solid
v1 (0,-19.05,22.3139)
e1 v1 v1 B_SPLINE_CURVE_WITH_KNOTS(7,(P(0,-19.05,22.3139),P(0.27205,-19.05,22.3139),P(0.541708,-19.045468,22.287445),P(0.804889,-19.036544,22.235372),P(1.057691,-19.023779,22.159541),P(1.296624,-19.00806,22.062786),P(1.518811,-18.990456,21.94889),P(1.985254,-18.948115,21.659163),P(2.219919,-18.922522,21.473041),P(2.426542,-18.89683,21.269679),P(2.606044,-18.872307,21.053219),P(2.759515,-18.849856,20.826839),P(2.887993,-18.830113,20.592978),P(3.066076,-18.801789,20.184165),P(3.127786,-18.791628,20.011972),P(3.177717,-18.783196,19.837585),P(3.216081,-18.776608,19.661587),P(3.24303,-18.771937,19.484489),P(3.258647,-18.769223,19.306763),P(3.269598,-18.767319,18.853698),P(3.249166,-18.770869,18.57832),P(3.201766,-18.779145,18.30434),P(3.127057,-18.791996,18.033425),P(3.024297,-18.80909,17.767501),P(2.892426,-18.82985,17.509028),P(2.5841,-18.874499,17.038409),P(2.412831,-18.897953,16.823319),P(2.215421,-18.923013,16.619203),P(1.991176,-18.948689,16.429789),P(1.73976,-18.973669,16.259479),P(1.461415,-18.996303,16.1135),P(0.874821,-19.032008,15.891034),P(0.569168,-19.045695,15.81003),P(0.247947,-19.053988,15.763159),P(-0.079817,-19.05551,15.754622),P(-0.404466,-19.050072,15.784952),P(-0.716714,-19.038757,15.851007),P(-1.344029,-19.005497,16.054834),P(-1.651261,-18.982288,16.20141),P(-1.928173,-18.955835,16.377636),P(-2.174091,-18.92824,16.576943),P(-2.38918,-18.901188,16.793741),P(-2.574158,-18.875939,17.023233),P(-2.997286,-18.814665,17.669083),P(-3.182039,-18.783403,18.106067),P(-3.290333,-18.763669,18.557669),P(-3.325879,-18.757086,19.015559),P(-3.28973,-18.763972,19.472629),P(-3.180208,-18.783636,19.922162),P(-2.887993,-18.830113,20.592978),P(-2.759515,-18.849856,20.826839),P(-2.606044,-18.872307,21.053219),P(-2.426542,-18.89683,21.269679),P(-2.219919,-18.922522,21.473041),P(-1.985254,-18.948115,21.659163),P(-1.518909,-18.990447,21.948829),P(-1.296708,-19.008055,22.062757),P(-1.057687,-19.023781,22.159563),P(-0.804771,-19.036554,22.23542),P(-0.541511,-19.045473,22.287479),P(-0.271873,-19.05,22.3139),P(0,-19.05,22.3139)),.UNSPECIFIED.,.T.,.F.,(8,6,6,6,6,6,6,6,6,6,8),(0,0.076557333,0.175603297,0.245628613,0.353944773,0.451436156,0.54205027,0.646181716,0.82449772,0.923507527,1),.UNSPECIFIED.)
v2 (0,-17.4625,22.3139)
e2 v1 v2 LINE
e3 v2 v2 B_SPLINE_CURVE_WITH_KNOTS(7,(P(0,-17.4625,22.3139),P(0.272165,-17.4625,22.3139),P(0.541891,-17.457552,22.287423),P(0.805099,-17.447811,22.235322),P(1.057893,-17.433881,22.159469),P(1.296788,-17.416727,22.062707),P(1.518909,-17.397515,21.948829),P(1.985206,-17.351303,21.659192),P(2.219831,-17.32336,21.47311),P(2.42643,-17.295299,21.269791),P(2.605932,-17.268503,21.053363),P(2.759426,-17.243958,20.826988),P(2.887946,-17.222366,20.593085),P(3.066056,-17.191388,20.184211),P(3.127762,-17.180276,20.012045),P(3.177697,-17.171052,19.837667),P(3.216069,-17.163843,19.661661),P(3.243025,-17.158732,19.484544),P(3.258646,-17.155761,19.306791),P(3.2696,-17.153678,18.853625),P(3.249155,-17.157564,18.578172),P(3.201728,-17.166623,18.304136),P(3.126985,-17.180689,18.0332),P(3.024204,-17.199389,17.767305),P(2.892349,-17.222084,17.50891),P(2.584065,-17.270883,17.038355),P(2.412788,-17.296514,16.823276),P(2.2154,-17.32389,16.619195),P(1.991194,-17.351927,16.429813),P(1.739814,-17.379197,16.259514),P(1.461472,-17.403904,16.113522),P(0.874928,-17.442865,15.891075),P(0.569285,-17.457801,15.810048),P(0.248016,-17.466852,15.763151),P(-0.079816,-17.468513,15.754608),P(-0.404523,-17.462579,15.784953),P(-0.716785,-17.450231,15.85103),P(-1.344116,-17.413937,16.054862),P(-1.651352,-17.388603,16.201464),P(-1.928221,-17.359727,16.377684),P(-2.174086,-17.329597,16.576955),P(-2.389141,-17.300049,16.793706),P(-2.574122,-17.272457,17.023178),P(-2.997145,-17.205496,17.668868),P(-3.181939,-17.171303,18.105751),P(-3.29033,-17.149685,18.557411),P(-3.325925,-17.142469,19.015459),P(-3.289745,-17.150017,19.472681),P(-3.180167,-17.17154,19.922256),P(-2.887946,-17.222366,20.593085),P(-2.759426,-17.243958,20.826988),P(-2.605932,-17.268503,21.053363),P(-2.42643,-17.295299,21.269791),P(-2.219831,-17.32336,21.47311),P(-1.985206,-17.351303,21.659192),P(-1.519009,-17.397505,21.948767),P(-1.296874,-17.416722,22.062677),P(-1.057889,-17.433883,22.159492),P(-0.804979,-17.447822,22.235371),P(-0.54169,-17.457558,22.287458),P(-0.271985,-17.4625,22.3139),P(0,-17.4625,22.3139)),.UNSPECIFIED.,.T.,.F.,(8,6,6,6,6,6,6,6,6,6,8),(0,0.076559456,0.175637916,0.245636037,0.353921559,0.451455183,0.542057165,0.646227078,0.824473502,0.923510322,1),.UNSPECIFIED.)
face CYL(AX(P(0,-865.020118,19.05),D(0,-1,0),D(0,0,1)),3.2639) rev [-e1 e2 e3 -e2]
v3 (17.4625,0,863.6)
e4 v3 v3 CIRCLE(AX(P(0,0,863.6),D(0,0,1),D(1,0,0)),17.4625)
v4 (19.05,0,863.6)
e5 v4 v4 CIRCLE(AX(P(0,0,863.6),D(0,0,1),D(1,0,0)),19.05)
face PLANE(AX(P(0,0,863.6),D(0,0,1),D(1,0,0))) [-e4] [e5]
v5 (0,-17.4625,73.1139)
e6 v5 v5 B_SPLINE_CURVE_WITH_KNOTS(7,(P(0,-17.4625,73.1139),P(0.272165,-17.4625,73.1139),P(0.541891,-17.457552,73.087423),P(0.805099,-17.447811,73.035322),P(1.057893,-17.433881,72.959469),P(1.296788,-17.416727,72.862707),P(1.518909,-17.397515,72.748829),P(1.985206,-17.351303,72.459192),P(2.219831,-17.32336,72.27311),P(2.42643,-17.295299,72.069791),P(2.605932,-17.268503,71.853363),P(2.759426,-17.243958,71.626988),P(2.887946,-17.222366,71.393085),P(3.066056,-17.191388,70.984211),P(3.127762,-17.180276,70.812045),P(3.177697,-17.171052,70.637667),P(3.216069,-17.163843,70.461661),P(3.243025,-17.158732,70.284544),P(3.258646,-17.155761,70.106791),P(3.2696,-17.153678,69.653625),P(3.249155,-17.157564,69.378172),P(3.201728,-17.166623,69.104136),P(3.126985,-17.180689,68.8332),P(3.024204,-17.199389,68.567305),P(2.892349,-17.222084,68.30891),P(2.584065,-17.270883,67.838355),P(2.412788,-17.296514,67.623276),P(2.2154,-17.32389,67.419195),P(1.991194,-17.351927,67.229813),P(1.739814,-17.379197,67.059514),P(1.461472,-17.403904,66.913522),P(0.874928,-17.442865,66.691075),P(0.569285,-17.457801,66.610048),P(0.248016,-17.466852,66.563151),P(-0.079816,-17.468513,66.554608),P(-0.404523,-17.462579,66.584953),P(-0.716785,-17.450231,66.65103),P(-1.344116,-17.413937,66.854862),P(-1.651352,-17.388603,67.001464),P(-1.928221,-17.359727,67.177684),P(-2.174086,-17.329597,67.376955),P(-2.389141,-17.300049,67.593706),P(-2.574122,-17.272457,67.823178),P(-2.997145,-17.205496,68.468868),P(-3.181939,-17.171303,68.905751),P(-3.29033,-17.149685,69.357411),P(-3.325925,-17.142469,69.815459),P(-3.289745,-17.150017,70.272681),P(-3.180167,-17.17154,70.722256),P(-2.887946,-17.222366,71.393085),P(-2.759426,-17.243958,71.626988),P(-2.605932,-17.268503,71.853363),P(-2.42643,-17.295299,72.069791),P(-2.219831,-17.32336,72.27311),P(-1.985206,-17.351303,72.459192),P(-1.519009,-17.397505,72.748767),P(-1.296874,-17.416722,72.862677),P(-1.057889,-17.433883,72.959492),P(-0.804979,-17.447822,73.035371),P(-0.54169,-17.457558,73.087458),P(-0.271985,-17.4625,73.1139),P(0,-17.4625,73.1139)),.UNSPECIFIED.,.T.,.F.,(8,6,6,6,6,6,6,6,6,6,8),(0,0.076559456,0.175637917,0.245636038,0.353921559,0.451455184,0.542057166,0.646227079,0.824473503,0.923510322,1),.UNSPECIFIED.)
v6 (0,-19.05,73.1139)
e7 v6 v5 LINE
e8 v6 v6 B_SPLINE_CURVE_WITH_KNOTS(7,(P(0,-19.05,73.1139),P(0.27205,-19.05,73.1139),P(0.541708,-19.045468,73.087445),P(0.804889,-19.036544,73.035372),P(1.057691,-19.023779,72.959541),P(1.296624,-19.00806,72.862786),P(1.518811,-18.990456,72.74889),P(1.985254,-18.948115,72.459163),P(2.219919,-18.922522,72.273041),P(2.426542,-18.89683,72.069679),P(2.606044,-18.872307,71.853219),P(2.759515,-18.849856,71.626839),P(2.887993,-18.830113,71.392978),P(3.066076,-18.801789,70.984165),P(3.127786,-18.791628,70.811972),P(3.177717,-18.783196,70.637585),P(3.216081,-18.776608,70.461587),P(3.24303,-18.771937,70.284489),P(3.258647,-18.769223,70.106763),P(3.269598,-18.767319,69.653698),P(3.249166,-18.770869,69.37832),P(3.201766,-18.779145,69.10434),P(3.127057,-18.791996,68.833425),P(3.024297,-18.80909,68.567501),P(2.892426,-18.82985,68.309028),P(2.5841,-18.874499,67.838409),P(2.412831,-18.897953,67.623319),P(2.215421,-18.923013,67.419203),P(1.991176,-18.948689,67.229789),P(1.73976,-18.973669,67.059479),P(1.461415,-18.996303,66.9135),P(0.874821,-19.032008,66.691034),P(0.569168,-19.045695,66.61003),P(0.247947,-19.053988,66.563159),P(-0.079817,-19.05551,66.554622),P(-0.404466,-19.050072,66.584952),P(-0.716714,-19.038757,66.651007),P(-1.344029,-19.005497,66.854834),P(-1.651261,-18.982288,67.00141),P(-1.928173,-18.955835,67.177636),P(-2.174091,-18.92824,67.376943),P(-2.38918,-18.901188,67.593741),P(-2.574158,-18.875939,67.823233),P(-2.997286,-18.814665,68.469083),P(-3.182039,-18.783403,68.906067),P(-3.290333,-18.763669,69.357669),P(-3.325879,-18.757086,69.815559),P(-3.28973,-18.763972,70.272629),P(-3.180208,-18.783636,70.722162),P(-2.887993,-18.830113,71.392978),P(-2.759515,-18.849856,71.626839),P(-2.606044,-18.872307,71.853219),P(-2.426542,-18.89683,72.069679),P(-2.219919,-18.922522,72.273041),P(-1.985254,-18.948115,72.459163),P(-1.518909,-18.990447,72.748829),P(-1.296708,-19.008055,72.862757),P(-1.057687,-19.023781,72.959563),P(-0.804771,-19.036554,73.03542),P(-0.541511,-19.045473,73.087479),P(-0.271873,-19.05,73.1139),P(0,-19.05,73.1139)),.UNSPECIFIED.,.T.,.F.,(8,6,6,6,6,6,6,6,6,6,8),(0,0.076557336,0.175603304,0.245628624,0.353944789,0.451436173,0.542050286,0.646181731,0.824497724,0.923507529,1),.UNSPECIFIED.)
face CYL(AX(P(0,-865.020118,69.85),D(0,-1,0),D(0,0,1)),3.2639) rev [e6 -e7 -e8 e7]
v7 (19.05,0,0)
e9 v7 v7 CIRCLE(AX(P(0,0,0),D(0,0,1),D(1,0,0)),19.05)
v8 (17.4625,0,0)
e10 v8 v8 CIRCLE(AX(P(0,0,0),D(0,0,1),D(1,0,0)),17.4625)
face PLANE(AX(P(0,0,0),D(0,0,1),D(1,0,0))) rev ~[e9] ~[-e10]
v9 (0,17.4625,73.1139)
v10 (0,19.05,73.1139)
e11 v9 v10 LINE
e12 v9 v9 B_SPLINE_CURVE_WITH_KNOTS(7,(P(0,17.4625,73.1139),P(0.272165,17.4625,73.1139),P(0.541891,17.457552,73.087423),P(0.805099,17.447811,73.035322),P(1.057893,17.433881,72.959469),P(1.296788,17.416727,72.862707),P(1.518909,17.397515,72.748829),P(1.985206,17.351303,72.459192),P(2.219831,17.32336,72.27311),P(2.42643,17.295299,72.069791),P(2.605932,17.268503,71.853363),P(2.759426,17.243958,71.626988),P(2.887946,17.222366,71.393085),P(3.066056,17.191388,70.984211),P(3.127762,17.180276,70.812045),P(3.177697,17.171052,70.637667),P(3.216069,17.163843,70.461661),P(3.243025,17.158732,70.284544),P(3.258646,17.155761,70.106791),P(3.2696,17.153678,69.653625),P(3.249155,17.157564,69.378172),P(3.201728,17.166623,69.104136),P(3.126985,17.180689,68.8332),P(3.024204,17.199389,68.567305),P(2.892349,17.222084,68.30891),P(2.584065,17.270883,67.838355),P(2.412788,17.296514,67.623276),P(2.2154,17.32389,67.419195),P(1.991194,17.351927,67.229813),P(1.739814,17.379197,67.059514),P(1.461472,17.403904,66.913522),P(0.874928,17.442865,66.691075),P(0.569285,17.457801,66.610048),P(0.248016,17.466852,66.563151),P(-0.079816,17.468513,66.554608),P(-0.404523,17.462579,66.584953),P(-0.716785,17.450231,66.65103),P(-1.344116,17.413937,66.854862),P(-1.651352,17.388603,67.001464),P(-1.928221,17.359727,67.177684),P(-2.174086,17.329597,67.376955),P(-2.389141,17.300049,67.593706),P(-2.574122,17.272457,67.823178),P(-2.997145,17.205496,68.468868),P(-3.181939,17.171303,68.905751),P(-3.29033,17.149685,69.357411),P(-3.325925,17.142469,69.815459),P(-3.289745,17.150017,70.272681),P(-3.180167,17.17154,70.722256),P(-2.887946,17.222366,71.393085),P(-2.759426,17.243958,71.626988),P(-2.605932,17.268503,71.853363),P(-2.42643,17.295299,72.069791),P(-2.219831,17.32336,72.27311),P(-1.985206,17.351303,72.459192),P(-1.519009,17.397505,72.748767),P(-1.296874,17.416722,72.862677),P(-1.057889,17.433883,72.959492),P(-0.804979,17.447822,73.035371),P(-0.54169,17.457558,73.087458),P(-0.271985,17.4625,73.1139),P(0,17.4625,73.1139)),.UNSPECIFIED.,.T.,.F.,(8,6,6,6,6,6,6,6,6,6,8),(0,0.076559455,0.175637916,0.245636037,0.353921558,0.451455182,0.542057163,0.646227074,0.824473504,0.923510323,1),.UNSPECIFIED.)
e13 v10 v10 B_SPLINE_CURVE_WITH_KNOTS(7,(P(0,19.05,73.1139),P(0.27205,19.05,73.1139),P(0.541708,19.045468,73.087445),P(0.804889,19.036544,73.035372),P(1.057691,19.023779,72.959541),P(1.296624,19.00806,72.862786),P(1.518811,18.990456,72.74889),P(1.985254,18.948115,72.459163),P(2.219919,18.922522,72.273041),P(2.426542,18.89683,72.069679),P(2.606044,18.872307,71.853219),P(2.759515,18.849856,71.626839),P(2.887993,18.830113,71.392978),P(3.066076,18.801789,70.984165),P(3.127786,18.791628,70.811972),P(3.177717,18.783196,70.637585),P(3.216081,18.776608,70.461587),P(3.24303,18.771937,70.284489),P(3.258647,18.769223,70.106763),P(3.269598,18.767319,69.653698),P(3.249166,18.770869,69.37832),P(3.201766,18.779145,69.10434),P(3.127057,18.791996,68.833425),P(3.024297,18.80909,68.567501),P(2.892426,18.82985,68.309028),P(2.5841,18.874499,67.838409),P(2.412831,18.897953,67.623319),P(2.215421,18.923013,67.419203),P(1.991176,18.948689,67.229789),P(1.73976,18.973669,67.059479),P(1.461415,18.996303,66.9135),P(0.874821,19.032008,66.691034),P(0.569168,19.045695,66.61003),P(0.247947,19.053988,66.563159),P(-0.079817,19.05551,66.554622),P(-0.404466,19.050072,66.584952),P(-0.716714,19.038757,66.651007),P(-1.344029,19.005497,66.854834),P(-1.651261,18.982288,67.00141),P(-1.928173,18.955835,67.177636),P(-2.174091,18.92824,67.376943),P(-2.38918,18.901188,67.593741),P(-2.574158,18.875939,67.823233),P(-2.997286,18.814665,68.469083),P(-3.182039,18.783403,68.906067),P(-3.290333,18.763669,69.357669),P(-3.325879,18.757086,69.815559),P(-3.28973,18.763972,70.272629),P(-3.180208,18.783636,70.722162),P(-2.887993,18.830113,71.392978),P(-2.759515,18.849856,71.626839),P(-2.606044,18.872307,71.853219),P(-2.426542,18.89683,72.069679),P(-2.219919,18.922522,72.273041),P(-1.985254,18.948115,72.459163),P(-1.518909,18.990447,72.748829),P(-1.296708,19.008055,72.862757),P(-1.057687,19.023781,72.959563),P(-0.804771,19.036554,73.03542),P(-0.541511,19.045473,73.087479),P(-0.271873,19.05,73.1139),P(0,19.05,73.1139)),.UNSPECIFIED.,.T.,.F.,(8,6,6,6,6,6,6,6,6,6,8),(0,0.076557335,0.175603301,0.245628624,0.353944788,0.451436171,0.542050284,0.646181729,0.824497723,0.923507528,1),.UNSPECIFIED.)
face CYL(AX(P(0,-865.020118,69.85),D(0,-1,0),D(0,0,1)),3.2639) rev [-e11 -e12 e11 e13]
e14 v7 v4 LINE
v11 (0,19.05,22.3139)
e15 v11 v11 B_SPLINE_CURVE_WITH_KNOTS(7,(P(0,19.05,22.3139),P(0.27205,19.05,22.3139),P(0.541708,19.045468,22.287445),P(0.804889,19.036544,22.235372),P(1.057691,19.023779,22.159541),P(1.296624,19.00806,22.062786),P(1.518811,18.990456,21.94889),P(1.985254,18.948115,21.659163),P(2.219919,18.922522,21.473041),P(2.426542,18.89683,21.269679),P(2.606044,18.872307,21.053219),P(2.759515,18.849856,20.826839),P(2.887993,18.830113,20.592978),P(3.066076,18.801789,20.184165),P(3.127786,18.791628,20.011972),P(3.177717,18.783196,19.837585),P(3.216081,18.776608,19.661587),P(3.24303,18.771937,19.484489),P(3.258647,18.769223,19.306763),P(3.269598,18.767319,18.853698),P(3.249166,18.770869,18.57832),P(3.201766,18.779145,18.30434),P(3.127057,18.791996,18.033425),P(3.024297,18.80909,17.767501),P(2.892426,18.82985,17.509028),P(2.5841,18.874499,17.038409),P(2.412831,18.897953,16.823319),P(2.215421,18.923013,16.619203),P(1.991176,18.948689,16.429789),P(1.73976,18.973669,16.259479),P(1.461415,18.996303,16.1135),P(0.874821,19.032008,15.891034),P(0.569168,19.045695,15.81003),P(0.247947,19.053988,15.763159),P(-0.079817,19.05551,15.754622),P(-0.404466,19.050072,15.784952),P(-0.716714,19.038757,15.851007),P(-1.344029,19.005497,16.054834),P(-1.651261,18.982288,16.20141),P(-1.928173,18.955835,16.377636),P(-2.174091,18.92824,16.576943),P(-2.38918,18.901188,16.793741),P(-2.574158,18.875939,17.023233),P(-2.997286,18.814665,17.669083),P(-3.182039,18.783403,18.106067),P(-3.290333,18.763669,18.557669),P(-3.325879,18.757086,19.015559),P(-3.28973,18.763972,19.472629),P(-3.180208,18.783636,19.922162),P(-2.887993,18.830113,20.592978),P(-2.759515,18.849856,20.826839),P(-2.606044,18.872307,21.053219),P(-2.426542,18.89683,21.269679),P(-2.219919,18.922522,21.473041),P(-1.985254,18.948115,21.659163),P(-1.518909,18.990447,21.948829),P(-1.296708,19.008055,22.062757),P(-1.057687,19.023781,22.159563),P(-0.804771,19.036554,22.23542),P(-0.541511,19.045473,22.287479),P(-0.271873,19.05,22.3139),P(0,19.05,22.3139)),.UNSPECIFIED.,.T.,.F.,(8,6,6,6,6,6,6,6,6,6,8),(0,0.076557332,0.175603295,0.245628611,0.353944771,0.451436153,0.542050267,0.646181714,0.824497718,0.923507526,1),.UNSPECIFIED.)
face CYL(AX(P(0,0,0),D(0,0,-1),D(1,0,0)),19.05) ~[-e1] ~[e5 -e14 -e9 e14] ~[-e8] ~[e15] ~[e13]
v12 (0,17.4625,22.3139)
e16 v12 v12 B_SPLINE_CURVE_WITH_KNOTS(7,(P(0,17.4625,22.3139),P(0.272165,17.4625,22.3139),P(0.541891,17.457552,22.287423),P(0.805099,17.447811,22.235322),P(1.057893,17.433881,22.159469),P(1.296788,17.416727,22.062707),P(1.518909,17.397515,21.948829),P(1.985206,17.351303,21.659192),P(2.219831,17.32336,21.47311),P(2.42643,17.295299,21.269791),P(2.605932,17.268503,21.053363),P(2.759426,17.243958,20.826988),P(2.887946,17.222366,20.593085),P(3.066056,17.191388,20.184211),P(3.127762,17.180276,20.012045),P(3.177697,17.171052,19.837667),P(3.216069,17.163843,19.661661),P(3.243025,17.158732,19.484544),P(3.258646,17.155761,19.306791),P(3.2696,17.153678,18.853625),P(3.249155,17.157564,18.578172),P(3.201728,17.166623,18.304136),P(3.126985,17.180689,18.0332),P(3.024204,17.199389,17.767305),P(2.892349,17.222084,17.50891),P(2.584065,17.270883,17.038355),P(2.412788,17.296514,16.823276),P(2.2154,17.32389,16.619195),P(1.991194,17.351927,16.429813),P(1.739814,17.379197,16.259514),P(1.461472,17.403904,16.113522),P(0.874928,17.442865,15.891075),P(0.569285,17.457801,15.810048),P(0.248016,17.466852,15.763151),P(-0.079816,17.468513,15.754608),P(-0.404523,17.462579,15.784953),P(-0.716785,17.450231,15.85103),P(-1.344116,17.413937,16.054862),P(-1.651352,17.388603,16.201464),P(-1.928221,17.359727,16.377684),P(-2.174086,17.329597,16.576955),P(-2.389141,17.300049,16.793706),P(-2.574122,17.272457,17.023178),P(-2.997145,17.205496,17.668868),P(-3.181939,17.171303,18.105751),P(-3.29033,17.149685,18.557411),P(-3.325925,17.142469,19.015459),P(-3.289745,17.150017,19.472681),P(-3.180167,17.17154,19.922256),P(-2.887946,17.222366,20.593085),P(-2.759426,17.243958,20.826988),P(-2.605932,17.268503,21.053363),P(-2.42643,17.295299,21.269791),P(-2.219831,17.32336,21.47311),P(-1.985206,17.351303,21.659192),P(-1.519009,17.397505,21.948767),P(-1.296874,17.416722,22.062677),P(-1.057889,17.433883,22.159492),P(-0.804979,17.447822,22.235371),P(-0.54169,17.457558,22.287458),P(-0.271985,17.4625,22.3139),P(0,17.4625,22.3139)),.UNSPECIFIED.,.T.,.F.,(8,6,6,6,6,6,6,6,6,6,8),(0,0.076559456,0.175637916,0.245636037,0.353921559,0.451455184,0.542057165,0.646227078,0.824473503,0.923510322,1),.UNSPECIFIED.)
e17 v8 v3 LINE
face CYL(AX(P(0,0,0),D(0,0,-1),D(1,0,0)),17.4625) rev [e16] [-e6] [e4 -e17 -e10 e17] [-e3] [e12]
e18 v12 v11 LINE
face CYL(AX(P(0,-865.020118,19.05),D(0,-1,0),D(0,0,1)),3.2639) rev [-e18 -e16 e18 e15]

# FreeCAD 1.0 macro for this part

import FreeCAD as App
import Part
import Sketcher
from FreeCAD import Vector
Q = App.Units.Quantity

doc = App.newDocument("Part")
body = doc.addObject("PartDesign::Body", "Body")

# Sketch on XY plane
sketch1 = doc.addObject("Sketcher::SketchObject", "Sketch")
body.addObject(sketch1)
sketch1.AttachmentSupport = (doc.XY_Plane, [""])
sketch1.MapMode = "FlatFace"
sketch1.addGeometry(Part.Circle(Vector(0, 0, 0), Vector(0, 0, 1), 19), False)
sketch1.addGeometry(Part.Circle(Vector(0, 0, 0), Vector(0, 0, 1), 17), False)
sketch1.addConstraint(Sketcher.Constraint("Coincident", 0, 3, -1, 1))
sketch1.addConstraint(Sketcher.Constraint("Coincident", 1, 3, -1, 1))
sketch1.addConstraint(Sketcher.Constraint("Diameter", 0, Q("1.5 in")))
sketch1.addConstraint(Sketcher.Constraint("Diameter", 1, Q("1.375 in")))
pad1 = doc.addObject("PartDesign::Pad", "Pad")
body.addObject(pad1)
pad1.Profile = sketch1
pad1.Length = Q("34 in")

# Sketch on XZ plane
sketch2 = doc.addObject("Sketcher::SketchObject", "Sketch001")
body.addObject(sketch2)
sketch2.AttachmentSupport = (doc.XZ_Plane, [""])
sketch2.MapMode = "FlatFace"
sketch2.addGeometry(Part.Circle(Vector(0, 19.1, 0), Vector(0, 0, 1), 3.3), False)
sketch2.addGeometry(Part.Circle(Vector(0, 69.8, 0), Vector(0, 0, 1), 3.3), False)
sketch2.addConstraint(Sketcher.Constraint("Equal", 0, 1))
sketch2.addConstraint(Sketcher.Constraint("PointOnObject", 0, 3, -2))
sketch2.addConstraint(Sketcher.Constraint("PointOnObject", 1, 3, -2))
sketch2.addConstraint(Sketcher.Constraint("Diameter", 0, Q("0.257 in")))
sketch2.addConstraint(Sketcher.Constraint("DistanceY", 0, 3, 1, 3, Q("2 in")))
sketch2.addConstraint(Sketcher.Constraint("DistanceY", -1, 1, 0, 3, Q("0.75 in")))
pocket1 = doc.addObject("PartDesign::Pocket", "Pocket")
body.addObject(pocket1)
pocket1.Profile = sketch2
pocket1.Type = "ThroughAll"
pocket1.Midplane = True

doc.recompute()
